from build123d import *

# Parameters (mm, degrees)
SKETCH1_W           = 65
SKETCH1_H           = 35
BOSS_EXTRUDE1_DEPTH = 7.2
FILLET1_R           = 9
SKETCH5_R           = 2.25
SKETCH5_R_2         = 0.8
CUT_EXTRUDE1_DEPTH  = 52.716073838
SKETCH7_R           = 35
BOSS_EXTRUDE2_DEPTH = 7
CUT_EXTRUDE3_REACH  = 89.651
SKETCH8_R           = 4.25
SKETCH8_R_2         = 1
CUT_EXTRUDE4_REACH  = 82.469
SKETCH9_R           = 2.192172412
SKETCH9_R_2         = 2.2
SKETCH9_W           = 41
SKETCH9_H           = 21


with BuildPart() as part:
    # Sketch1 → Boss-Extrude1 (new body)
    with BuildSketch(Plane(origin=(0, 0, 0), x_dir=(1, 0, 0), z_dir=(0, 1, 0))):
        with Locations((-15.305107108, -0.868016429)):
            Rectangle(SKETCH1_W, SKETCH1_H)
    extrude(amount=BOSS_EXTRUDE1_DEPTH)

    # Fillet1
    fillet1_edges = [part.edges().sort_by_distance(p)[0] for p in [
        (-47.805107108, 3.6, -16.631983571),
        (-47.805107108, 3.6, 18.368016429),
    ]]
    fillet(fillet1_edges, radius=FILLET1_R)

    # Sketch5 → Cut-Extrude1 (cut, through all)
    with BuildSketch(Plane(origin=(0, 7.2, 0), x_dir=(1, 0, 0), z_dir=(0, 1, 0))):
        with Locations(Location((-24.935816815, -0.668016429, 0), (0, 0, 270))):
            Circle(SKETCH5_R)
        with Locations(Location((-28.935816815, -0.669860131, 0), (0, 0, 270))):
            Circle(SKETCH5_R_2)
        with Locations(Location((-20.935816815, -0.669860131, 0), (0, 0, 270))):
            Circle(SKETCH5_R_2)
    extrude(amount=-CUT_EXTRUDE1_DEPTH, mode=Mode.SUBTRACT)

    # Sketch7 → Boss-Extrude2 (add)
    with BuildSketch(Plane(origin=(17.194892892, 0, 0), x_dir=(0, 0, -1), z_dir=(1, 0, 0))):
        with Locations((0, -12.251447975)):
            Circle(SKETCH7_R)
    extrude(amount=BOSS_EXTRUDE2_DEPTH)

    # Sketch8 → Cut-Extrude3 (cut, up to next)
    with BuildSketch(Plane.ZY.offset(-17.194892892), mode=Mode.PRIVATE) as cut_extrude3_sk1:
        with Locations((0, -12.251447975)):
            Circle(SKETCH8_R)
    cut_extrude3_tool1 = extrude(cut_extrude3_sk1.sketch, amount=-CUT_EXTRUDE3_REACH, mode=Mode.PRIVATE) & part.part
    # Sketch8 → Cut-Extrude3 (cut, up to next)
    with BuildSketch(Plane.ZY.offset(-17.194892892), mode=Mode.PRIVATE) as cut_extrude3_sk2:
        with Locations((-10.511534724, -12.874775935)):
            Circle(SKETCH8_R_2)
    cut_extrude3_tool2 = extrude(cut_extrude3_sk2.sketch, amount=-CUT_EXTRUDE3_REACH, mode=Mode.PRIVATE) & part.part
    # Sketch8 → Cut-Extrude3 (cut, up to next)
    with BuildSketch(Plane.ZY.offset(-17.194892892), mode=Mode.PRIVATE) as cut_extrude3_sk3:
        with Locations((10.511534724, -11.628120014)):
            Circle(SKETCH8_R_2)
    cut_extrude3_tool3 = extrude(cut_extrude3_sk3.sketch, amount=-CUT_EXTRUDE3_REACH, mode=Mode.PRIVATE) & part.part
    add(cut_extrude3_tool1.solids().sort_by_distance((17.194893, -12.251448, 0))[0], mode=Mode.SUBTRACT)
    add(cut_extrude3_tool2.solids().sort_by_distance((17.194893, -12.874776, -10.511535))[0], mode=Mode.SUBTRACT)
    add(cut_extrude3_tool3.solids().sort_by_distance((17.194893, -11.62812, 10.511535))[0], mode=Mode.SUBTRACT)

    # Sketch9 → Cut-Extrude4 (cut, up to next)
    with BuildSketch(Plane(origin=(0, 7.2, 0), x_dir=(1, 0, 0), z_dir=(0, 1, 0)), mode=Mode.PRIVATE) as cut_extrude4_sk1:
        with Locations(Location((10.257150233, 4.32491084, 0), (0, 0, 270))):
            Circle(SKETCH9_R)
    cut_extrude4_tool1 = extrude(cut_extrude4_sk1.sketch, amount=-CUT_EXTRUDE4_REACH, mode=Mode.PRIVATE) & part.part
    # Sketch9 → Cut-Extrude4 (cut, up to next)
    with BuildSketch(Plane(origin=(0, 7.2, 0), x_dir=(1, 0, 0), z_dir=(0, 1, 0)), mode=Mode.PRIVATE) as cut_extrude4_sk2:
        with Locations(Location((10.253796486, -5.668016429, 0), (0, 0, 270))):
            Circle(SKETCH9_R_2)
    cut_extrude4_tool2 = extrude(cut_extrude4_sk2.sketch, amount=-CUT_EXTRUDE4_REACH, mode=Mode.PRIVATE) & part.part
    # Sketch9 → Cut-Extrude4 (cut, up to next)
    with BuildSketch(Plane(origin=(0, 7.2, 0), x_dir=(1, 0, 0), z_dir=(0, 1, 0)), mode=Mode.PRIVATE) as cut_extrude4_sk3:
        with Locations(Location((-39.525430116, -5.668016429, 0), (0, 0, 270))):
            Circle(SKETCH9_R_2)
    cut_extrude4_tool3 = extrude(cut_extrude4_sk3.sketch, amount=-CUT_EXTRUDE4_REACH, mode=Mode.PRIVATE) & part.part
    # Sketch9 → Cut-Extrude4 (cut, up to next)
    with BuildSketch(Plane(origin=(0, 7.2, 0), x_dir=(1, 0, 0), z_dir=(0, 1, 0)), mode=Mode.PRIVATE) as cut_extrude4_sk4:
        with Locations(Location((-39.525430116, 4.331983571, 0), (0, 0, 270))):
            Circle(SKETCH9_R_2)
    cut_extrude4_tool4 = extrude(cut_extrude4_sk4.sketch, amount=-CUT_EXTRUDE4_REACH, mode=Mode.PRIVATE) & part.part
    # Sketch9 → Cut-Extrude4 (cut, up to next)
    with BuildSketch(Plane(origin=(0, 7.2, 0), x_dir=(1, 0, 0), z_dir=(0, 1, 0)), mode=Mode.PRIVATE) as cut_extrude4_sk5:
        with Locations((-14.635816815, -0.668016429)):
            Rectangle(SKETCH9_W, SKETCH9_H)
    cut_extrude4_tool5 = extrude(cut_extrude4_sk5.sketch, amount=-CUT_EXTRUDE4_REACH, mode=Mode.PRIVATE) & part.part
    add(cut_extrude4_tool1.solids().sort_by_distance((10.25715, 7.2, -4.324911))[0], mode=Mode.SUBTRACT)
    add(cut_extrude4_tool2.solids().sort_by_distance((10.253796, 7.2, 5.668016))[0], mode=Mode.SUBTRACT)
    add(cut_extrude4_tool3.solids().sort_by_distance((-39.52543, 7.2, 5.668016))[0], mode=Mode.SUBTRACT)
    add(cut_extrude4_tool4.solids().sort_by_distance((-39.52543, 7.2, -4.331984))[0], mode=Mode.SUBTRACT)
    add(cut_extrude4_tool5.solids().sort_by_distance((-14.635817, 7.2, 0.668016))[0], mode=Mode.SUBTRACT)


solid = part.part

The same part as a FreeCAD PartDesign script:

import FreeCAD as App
import Part
import Sketcher


def edges_at(feature, points):
    """Names of the edges that pass closest to the given points."""
    edges = feature.Shape.Edges
    near = lambda p: min(range(len(edges)), key=lambda i: edges[i].distToShape(Part.Vertex(*p))[0])
    return sorted({f"Edge{near(p) + 1}" for p in points})


def add_polygon(sketch, points):
    """Adds a closed chain of lines whose ends are joined by coincident constraints."""
    first, n = sketch.GeometryCount, len(points)
    for a, b in zip(points, points[1:] + points[:1]):
        sketch.addGeometry(Part.LineSegment(App.Vector(*a, 0), App.Vector(*b, 0)), False)
    for i in range(n):
        sketch.addConstraint(Sketcher.Constraint("Coincident", first + i, 2, first + (i + 1) % n, 1))

doc = App.newDocument("Part")
params = doc.addObject("Spreadsheet::Sheet", "Params")
for row, (alias, value) in enumerate([
    ("sketch1_width", "65 mm"),
    ("sketch1_height", "35 mm"),
    ("pad1_length", "7.2 mm"),
    ("fillet_radius", "9 mm"),
    ("sketch2_diameter", "4.5 mm"),
    ("sketch2_diameter2", "1.6 mm"),
    ("sketch3_diameter", "70 mm"),
    ("pad2_length", "7 mm"),
    ("sketch4_diameter", "8.5 mm"),
    ("sketch5_diameter", "2 mm"),
    ("sketch6_diameter", "2 mm"),
    ("sketch8_diameter", "4.4 mm"),
    ("sketch9_diameter", "4.4 mm"),
    ("sketch10_diameter", "4.4 mm"),
    ("sketch11_width", "41 mm"),
    ("sketch11_height", "21 mm"),
], start=1):
    params.set(f"A{row}", alias)
    params.set(f"B{row}", "=" + value)
    params.setAlias(f"B{row}", alias)

body = doc.addObject("PartDesign::Body", "Body")

sketch1 = doc.addObject("Sketcher::SketchObject", "Sketch")
body.addObject(sketch1)
sketch1.AttachmentSupport = (doc.XZ_Plane, [""])
sketch1.MapMode = "FlatFace"
add_polygon(sketch1, [(-47.805107, -16.631984), (-47.805107, 18.368016), (17.194893, 18.368016), (17.194893, -16.631984)])
sketch1.addConstraint(Sketcher.Constraint("Vertical", 0))
sketch1.addConstraint(Sketcher.Constraint("Horizontal", 1))
sketch1.addConstraint(Sketcher.Constraint("Vertical", 2))
sketch1.addConstraint(Sketcher.Constraint("Horizontal", 3))
sketch1.addConstraint(Sketcher.Constraint("DistanceX", 1, 1, 1, 2, 65.0))
sketch1.addConstraint(Sketcher.Constraint("DistanceY", 0, 1, 0, 2, 35.0))
sketch1.addConstraint(Sketcher.Constraint("DistanceX", 0, 2, -1, 1, 47.805107))
sketch1.addConstraint(Sketcher.Constraint("DistanceY", -1, 1, 0, 2, 18.368016))
sketch1.setExpression("Constraints[8]", "Params.sketch1_width")
sketch1.setExpression("Constraints[9]", "Params.sketch1_height")
pad1 = doc.addObject("PartDesign::Pad", "Pad")
body.addObject(pad1)
pad1.Profile = sketch1
pad1.setExpression("Length", "Params.pad1_length")
pad1.Reversed = True
doc.recompute()

fillet = doc.addObject("PartDesign::Fillet", "Fillet")
body.addObject(fillet)
fillet.Base = (pad1, edges_at(pad1, [(-47.805, 3.6, -16.632), (-47.805, 3.6, 18.368)]))
fillet.setExpression("Radius", "Params.fillet_radius")

sketch2 = doc.addObject("Sketcher::SketchObject", "Sketch001")
body.addObject(sketch2)
sketch2.AttachmentSupport = (doc.XZ_Plane, [""])
sketch2.MapMode = "FlatFace"
sketch2.AttachmentOffset = App.Placement(App.Vector(0, 0, -7.2), App.Rotation())
sketch2.addGeometry(Part.Circle(App.Vector(-24.935817, 0.668016, 0), App.Vector(0, 0, 1), 2.25), False)
sketch2.addGeometry(Part.Circle(App.Vector(-28.935817, 0.66986, 0), App.Vector(0, 0, 1), 0.8), False)
sketch2.addGeometry(Part.Circle(App.Vector(-20.935817, 0.66986, 0), App.Vector(0, 0, 1), 0.8), False)
sketch2.addConstraint(Sketcher.Constraint("Equal", 1, 2))
sketch2.addConstraint(Sketcher.Constraint("Horizontal", 1, 3, 2, 3))
sketch2.addConstraint(Sketcher.Constraint("Diameter", 0, 4.5))
sketch2.addConstraint(Sketcher.Constraint("Diameter", 1, 1.6))
sketch2.addConstraint(Sketcher.Constraint("DistanceX", 1, 3, 0, 3, 4.0))
sketch2.addConstraint(Sketcher.Constraint("DistanceX", 0, 3, 2, 3, 4.0))
sketch2.addConstraint(Sketcher.Constraint("DistanceY", -1, 1, 1, 3, 0.66986))
sketch2.addConstraint(Sketcher.Constraint("DistanceX", 0, 3, -1, 1, 24.935817))
sketch2.addConstraint(Sketcher.Constraint("DistanceY", -1, 1, 0, 3, 0.668016))
sketch2.setExpression("Constraints[2]", "Params.sketch2_diameter")
sketch2.setExpression("Constraints[3]", "Params.sketch2_diameter2")
pocket1 = doc.addObject("PartDesign::Pocket", "Pocket")
body.addObject(pocket1)
pocket1.Profile = sketch2
pocket1.Type = "ThroughAll"
pocket1.Reversed = True

sketch3 = doc.addObject("Sketcher::SketchObject", "Sketch002")
body.addObject(sketch3)
sketch3.AttachmentSupport = (doc.YZ_Plane, [""])
sketch3.MapMode = "FlatFace"
sketch3.AttachmentOffset = App.Placement(App.Vector(0, 0, 17.194893), App.Rotation())
sketch3.addGeometry(Part.Circle(App.Vector(-12.251448, 0, 0), App.Vector(0, 0, 1), 35), False)
sketch3.addConstraint(Sketcher.Constraint("PointOnObject", 0, 3, -1))
sketch3.addConstraint(Sketcher.Constraint("Diameter", 0, 70.0))
sketch3.addConstraint(Sketcher.Constraint("DistanceX", 0, 3, -1, 1, 12.251448))
sketch3.setExpression("Constraints[1]", "Params.sketch3_diameter")
pad2 = doc.addObject("PartDesign::Pad", "Pad001")
body.addObject(pad2)
pad2.Profile = sketch3
pad2.setExpression("Length", "Params.pad2_length")

sketch4 = doc.addObject("Sketcher::SketchObject", "Sketch003")
body.addObject(sketch4)
sketch4.AttachmentSupport = (doc.YZ_Plane, [""])
sketch4.MapMode = "FlatFace"
sketch4.AttachmentOffset = App.Placement(App.Vector(0, 0, 17.194893), App.Rotation())
sketch4.addGeometry(Part.Circle(App.Vector(-12.251448, 0, 0), App.Vector(0, 0, 1), 4.25), False)
sketch4.addConstraint(Sketcher.Constraint("PointOnObject", 0, 3, -1))
sketch4.addConstraint(Sketcher.Constraint("Diameter", 0, 8.5))
sketch4.addConstraint(Sketcher.Constraint("DistanceX", 0, 3, -1, 1, 12.251448))
sketch4.setExpression("Constraints[1]", "Params.sketch4_diameter")
pocket2 = doc.addObject("PartDesign::Pocket", "Pocket001")
body.addObject(pocket2)
pocket2.Profile = sketch4
pocket2.Type = "UpToFirst"
pocket2.Reversed = True

sketch5 = doc.addObject("Sketcher::SketchObject", "Sketch004")
body.addObject(sketch5)
sketch5.AttachmentSupport = (doc.YZ_Plane, [""])
sketch5.MapMode = "FlatFace"
sketch5.AttachmentOffset = App.Placement(App.Vector(0, 0, 17.194893), App.Rotation())
sketch5.addGeometry(Part.Circle(App.Vector(-12.874776, -10.511535, 0), App.Vector(0, 0, 1), 1), False)
sketch5.addConstraint(Sketcher.Constraint("Diameter", 0, 2.0))
sketch5.addConstraint(Sketcher.Constraint("DistanceX", 0, 3, -1, 1, 12.874776))
sketch5.addConstraint(Sketcher.Constraint("DistanceY", 0, 3, -1, 1, 10.511535))
sketch5.setExpression("Constraints[0]", "Params.sketch5_diameter")
pocket3 = doc.addObject("PartDesign::Pocket", "Pocket002")
body.addObject(pocket3)
pocket3.Profile = sketch5
pocket3.Type = "UpToFirst"
pocket3.Reversed = True

sketch6 = doc.addObject("Sketcher::SketchObject", "Sketch005")
body.addObject(sketch6)
sketch6.AttachmentSupport = (doc.YZ_Plane, [""])
sketch6.MapMode = "FlatFace"
sketch6.AttachmentOffset = App.Placement(App.Vector(0, 0, 17.194893), App.Rotation())
sketch6.addGeometry(Part.Circle(App.Vector(-11.62812, 10.511535, 0), App.Vector(0, 0, 1), 1), False)
sketch6.addConstraint(Sketcher.Constraint("Diameter", 0, 2.0))
sketch6.addConstraint(Sketcher.Constraint("DistanceX", 0, 3, -1, 1, 11.62812))
sketch6.addConstraint(Sketcher.Constraint("DistanceY", -1, 1, 0, 3, 10.511535))
sketch6.setExpression("Constraints[0]", "Params.sketch6_diameter")
pocket4 = doc.addObject("PartDesign::Pocket", "Pocket003")
body.addObject(pocket4)
pocket4.Profile = sketch6
pocket4.Type = "UpToFirst"
pocket4.Reversed = True

sketch7 = doc.addObject("Sketcher::SketchObject", "Sketch006")
body.addObject(sketch7)
sketch7.AttachmentSupport = (doc.XZ_Plane, [""])
sketch7.MapMode = "FlatFace"
sketch7.AttachmentOffset = App.Placement(App.Vector(0, 0, -7.2), App.Rotation())
sketch7.addGeometry(Part.Circle(App.Vector(10.25715, -4.324911, 0), App.Vector(0, 0, 1), 2.192172), False)
sketch7.addConstraint(Sketcher.Constraint("Diameter", 0, 4.384345))
sketch7.addConstraint(Sketcher.Constraint("DistanceX", -1, 1, 0, 3, 10.25715))
sketch7.addConstraint(Sketcher.Constraint("DistanceY", 0, 3, -1, 1, 4.324911))
pocket5 = doc.addObject("PartDesign::Pocket", "Pocket004")
body.addObject(pocket5)
pocket5.Profile = sketch7
pocket5.Type = "UpToFirst"
pocket5.Reversed = True

sketch8 = doc.addObject("Sketcher::SketchObject", "Sketch007")
body.addObject(sketch8)
sketch8.AttachmentSupport = (doc.XZ_Plane, [""])
sketch8.MapMode = "FlatFace"
sketch8.AttachmentOffset = App.Placement(App.Vector(0, 0, -7.2), App.Rotation())
sketch8.addGeometry(Part.Circle(App.Vector(10.253796, 5.668016, 0), App.Vector(0, 0, 1), 2.2), False)
sketch8.addConstraint(Sketcher.Constraint("Diameter", 0, 4.4))
sketch8.addConstraint(Sketcher.Constraint("DistanceX", -1, 1, 0, 3, 10.253796))
sketch8.addConstraint(Sketcher.Constraint("DistanceY", -1, 1, 0, 3, 5.668016))
sketch8.setExpression("Constraints[0]", "Params.sketch8_diameter")
pocket6 = doc.addObject("PartDesign::Pocket", "Pocket005")
body.addObject(pocket6)
pocket6.Profile = sketch8
pocket6.Type = "UpToFirst"
pocket6.Reversed = True

sketch9 = doc.addObject("Sketcher::SketchObject", "Sketch008")
body.addObject(sketch9)
sketch9.AttachmentSupport = (doc.XZ_Plane, [""])
sketch9.MapMode = "FlatFace"
sketch9.AttachmentOffset = App.Placement(App.Vector(0, 0, -7.2), App.Rotation())
sketch9.addGeometry(Part.Circle(App.Vector(-39.52543, 5.668016, 0), App.Vector(0, 0, 1), 2.2), False)
sketch9.addConstraint(Sketcher.Constraint("Diameter", 0, 4.4))
sketch9.addConstraint(Sketcher.Constraint("DistanceX", 0, 3, -1, 1, 39.52543))
sketch9.addConstraint(Sketcher.Constraint("DistanceY", -1, 1, 0, 3, 5.668016))
sketch9.setExpression("Constraints[0]", "Params.sketch9_diameter")
pocket7 = doc.addObject("PartDesign::Pocket", "Pocket006")
body.addObject(pocket7)
pocket7.Profile = sketch9
pocket7.Type = "UpToFirst"
pocket7.Reversed = True

sketch10 = doc.addObject("Sketcher::SketchObject", "Sketch009")
body.addObject(sketch10)
sketch10.AttachmentSupport = (doc.XZ_Plane, [""])
sketch10.MapMode = "FlatFace"
sketch10.AttachmentOffset = App.Placement(App.Vector(0, 0, -7.2), App.Rotation())
sketch10.addGeometry(Part.Circle(App.Vector(-39.52543, -4.331984, 0), App.Vector(0, 0, 1), 2.2), False)
sketch10.addConstraint(Sketcher.Constraint("Diameter", 0, 4.4))
sketch10.addConstraint(Sketcher.Constraint("DistanceX", 0, 3, -1, 1, 39.52543))
sketch10.addConstraint(Sketcher.Constraint("DistanceY", 0, 3, -1, 1, 4.331984))
sketch10.setExpression("Constraints[0]", "Params.sketch10_diameter")
pocket8 = doc.addObject("PartDesign::Pocket", "Pocket007")
body.addObject(pocket8)
pocket8.Profile = sketch10
pocket8.Type = "UpToFirst"
pocket8.Reversed = True

sketch11 = doc.addObject("Sketcher::SketchObject", "Sketch010")
body.addObject(sketch11)
sketch11.AttachmentSupport = (doc.XZ_Plane, [""])
sketch11.MapMode = "FlatFace"
sketch11.AttachmentOffset = App.Placement(App.Vector(0, 0, -7.2), App.Rotation())
add_polygon(sketch11, [(-35.135817, -9.831984), (-35.135817, 11.168016), (5.864183, 11.168016), (5.864183, -9.831984)])
sketch11.addConstraint(Sketcher.Constraint("Vertical", 0))
sketch11.addConstraint(Sketcher.Constraint("Horizontal", 1))
sketch11.addConstraint(Sketcher.Constraint("Vertical", 2))
sketch11.addConstraint(Sketcher.Constraint("Horizontal", 3))
sketch11.addConstraint(Sketcher.Constraint("DistanceX", 1, 1, 1, 2, 41.0))
sketch11.addConstraint(Sketcher.Constraint("DistanceY", 0, 1, 0, 2, 21.0))
sketch11.addConstraint(Sketcher.Constraint("DistanceX", 0, 2, -1, 1, 35.135817))
sketch11.addConstraint(Sketcher.Constraint("DistanceY", -1, 1, 0, 2, 11.168016))
sketch11.setExpression("Constraints[8]", "Params.sketch11_width")
sketch11.setExpression("Constraints[9]", "Params.sketch11_height")
pocket9 = doc.addObject("PartDesign::Pocket", "Pocket008")
body.addObject(pocket9)
pocket9.Profile = sketch11
pocket9.Type = "UpToFirst"
pocket9.Reversed = True

doc.recompute()
